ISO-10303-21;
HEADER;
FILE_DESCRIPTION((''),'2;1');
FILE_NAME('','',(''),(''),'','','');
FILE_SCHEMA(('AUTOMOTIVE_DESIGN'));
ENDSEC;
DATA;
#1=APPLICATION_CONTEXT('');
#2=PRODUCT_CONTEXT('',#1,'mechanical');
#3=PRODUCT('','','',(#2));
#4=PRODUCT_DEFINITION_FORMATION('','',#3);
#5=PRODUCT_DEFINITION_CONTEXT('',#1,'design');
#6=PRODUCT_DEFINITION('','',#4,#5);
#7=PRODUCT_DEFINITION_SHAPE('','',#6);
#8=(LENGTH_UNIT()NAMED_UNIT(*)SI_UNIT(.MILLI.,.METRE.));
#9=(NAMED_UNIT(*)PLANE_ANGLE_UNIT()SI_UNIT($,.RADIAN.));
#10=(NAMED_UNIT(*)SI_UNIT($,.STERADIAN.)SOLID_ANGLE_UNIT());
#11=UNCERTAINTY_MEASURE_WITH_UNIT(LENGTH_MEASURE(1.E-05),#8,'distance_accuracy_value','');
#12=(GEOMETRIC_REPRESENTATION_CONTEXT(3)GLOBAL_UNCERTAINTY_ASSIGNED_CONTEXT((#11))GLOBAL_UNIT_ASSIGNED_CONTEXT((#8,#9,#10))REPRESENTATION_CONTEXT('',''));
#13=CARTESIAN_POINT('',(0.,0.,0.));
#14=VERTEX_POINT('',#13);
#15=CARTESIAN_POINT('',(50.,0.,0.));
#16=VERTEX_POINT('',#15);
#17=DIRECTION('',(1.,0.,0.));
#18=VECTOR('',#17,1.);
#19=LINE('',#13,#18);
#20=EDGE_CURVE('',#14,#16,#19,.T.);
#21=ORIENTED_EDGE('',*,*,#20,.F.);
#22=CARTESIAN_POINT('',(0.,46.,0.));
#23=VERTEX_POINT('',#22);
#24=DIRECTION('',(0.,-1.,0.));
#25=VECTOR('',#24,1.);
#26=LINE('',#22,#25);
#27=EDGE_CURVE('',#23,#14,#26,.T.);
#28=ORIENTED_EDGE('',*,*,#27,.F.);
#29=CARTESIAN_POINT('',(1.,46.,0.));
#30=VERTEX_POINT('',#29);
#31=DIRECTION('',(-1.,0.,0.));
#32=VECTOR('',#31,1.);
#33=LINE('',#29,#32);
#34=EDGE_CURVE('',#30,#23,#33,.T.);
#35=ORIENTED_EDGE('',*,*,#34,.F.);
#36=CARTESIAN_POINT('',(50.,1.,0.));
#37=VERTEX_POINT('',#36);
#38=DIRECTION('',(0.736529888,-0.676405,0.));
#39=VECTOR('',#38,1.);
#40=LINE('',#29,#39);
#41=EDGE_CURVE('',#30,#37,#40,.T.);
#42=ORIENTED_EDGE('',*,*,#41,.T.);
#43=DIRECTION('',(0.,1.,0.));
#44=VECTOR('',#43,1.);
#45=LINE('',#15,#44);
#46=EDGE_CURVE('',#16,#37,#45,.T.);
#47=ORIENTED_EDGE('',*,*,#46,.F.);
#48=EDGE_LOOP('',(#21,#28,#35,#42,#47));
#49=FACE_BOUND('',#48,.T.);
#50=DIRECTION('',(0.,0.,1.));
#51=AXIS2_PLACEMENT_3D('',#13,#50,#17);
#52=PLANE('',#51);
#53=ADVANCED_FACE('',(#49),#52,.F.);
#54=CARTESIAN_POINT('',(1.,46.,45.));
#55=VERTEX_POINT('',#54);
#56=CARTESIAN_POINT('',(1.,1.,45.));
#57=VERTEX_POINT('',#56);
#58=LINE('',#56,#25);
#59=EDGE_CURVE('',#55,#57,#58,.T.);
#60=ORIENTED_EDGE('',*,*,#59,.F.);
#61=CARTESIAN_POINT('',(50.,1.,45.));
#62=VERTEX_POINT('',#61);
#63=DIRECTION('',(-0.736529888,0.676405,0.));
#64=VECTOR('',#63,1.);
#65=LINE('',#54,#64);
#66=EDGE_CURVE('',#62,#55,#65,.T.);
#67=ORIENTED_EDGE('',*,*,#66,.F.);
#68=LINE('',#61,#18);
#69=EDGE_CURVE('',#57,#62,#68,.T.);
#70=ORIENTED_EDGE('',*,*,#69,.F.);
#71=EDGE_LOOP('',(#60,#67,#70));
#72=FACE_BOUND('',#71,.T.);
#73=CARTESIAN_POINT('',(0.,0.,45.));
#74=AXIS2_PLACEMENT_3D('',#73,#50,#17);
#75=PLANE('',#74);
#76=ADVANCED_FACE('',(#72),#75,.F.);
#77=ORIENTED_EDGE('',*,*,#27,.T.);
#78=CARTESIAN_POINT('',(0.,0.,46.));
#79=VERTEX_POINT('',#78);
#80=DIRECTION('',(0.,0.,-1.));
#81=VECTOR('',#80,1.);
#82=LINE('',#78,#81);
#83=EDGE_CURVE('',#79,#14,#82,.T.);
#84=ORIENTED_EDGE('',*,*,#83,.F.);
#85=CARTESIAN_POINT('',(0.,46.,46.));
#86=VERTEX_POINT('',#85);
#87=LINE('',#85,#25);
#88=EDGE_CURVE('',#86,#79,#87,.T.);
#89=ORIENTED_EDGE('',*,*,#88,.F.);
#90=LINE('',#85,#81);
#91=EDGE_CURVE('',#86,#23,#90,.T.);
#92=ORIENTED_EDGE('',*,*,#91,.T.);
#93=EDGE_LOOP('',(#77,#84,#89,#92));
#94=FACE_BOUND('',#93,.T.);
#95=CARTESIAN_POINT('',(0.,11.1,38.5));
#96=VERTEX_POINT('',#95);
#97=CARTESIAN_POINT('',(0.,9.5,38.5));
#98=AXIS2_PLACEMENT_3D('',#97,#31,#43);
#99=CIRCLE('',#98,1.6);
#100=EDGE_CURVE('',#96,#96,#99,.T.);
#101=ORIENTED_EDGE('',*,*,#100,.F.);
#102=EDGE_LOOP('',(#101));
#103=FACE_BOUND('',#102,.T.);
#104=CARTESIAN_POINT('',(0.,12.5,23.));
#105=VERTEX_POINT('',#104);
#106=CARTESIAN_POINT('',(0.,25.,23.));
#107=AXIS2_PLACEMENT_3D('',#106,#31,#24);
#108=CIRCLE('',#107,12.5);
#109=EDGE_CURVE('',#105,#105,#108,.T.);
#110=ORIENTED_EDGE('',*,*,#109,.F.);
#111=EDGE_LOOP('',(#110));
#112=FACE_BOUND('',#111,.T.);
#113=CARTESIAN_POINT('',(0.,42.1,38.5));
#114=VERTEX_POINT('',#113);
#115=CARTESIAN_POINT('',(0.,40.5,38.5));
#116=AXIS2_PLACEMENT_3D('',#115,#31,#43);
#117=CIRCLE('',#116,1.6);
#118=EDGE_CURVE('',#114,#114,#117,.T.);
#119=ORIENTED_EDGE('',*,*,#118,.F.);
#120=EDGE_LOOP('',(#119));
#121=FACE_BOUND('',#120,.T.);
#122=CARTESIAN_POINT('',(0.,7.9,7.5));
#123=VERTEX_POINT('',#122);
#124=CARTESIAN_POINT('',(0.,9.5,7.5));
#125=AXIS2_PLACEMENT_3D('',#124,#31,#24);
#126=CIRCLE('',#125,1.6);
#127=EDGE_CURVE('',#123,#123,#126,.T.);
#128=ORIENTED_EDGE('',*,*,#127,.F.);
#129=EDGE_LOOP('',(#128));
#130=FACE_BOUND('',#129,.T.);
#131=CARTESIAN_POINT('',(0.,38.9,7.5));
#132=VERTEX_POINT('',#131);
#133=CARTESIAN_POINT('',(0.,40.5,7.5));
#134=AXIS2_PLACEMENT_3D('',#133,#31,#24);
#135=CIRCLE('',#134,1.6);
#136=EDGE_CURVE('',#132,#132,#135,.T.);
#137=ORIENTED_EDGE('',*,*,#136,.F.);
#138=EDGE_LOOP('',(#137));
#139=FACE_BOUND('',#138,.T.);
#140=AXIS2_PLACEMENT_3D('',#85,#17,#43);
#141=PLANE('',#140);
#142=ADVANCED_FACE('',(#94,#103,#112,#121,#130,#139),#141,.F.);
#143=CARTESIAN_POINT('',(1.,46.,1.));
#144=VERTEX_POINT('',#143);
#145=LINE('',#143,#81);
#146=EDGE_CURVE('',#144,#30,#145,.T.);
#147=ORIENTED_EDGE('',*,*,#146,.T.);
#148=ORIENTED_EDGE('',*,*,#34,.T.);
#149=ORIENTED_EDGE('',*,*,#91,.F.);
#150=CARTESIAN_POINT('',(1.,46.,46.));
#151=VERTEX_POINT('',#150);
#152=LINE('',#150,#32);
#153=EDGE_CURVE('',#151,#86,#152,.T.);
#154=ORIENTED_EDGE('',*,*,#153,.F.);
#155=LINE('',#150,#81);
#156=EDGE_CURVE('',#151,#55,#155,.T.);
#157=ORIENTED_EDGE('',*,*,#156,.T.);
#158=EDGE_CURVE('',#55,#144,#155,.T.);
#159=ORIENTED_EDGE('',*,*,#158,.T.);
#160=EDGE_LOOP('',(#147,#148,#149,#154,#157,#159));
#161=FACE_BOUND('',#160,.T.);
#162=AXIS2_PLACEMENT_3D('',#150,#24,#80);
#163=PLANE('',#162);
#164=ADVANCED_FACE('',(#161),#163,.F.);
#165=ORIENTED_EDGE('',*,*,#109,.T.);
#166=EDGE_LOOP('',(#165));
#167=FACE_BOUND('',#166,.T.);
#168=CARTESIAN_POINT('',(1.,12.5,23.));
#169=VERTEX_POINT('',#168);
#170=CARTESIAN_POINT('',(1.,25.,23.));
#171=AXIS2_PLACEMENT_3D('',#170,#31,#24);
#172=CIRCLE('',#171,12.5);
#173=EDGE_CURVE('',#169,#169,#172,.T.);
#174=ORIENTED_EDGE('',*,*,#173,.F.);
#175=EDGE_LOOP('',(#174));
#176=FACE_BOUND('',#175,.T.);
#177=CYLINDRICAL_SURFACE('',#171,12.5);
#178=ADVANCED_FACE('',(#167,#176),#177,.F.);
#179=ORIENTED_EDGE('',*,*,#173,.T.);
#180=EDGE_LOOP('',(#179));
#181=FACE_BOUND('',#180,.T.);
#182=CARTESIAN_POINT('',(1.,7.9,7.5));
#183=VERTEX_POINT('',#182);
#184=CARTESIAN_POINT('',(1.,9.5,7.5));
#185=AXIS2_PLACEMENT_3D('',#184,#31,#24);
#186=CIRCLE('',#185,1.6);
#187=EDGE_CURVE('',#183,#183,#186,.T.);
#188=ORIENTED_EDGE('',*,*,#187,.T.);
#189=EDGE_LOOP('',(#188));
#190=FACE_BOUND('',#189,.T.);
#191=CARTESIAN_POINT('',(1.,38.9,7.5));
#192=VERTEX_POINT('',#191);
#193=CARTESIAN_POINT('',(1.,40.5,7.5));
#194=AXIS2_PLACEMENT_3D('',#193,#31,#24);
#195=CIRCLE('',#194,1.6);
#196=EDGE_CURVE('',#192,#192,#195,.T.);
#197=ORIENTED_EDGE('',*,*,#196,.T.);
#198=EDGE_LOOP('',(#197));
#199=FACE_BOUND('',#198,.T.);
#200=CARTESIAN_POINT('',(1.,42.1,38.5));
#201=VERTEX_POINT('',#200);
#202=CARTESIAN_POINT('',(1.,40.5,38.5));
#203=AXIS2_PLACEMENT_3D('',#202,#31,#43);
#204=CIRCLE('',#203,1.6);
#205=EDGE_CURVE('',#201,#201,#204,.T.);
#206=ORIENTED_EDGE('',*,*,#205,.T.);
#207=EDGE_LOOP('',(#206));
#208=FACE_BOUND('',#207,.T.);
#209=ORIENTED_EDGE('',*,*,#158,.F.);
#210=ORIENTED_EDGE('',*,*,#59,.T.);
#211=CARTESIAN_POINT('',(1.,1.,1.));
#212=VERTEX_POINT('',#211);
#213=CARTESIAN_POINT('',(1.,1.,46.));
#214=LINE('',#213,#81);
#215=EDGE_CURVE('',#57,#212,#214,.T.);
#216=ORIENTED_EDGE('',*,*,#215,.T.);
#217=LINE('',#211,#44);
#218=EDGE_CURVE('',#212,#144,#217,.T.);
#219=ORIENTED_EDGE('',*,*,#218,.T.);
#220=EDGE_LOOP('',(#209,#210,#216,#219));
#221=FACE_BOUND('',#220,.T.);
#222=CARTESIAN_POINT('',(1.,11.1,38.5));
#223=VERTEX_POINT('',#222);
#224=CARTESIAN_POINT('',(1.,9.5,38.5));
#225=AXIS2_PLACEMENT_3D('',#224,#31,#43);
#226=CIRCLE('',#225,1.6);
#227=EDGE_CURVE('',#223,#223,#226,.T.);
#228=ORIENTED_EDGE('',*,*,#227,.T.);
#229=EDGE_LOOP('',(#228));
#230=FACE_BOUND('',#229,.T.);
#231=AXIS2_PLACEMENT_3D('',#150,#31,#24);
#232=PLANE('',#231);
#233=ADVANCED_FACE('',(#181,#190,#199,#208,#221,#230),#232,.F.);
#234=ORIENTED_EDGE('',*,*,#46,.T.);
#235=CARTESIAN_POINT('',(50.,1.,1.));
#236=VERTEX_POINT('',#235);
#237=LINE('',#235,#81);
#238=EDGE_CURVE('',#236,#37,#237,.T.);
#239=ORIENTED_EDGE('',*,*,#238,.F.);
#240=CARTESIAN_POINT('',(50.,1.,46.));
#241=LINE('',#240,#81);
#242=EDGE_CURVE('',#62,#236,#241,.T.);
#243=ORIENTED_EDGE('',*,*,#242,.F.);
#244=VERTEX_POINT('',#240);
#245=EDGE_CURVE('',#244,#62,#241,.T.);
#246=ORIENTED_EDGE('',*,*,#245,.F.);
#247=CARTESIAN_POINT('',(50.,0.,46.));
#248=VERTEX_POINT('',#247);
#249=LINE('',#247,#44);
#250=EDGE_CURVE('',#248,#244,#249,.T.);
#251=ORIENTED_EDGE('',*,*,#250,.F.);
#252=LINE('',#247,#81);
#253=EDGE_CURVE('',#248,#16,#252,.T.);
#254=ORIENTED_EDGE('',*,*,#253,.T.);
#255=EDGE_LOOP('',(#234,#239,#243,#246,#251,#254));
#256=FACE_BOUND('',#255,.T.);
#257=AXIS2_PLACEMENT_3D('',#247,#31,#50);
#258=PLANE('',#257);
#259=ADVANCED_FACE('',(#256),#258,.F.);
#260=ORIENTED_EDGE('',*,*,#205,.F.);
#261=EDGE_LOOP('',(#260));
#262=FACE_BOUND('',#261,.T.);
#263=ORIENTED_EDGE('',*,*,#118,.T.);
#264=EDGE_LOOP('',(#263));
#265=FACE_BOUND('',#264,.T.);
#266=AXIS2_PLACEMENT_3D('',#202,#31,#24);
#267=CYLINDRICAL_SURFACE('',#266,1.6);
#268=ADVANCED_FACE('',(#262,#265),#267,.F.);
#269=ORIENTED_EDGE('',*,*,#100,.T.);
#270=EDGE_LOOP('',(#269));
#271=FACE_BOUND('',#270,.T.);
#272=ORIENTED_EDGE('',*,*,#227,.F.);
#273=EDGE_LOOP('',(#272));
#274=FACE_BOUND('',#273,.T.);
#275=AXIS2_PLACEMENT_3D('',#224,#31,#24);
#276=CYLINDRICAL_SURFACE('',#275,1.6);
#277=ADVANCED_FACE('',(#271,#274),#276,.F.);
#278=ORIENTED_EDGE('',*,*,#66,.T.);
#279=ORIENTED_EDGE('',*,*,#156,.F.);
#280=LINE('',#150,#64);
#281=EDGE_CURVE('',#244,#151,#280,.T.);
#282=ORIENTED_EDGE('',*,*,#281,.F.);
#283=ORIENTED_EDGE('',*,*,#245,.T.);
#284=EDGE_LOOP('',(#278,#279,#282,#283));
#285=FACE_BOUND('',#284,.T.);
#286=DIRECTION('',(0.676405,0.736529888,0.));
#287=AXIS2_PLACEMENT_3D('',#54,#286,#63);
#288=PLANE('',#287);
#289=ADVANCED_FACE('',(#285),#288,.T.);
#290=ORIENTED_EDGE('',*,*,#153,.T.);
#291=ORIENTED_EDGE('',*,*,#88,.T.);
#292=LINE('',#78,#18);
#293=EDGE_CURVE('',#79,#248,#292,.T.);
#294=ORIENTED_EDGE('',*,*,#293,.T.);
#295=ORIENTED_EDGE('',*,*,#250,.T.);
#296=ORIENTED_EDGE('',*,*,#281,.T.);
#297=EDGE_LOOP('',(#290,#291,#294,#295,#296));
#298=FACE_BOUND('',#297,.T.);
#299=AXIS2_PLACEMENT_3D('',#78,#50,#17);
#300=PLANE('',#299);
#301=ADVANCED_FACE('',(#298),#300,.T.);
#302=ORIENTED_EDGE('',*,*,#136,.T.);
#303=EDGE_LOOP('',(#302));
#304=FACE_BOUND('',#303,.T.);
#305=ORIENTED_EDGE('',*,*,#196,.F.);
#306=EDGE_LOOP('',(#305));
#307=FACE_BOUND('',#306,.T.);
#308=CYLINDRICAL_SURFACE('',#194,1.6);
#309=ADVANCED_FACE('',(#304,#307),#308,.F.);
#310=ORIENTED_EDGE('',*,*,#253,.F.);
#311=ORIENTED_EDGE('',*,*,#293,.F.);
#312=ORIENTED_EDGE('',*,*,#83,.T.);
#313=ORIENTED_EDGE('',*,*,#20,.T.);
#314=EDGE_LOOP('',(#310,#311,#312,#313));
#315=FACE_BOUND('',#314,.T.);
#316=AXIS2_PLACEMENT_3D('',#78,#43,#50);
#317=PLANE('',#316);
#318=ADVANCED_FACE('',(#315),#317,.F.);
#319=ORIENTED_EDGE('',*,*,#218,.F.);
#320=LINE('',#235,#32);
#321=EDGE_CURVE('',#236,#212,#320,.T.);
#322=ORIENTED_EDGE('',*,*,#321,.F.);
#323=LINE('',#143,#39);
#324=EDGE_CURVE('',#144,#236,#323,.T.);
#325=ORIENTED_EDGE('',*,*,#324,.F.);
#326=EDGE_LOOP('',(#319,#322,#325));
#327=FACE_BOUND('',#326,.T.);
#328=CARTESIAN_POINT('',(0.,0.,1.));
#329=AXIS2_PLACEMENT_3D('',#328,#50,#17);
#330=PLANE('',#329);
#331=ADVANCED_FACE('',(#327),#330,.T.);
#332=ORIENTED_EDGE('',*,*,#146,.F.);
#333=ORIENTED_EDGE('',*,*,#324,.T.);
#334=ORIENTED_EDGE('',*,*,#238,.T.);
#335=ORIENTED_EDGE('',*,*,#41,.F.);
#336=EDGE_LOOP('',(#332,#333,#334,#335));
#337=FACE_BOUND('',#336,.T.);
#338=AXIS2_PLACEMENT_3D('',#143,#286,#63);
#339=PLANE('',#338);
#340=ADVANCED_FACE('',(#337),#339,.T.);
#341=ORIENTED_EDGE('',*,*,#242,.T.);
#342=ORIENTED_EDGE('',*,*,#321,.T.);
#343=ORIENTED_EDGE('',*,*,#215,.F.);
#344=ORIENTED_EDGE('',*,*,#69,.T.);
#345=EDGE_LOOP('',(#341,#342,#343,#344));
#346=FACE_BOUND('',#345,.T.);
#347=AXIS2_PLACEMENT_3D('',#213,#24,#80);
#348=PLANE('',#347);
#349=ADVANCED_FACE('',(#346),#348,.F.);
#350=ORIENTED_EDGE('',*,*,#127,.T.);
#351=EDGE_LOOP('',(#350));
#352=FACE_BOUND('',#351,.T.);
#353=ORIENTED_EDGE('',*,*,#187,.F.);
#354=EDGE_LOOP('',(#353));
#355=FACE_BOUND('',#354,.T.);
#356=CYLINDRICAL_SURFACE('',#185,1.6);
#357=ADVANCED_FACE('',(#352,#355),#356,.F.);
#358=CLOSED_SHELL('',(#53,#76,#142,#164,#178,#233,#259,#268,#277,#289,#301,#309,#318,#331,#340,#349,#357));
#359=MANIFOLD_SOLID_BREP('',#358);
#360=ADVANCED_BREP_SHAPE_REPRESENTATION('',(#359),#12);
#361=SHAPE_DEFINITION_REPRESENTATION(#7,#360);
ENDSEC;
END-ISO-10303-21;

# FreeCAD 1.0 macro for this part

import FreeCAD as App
import Part
import Sketcher
Q = App.Units.Quantity

doc = App.newDocument("Part")
body = doc.addObject("PartDesign::Body", "Body")

# Sketch on XY plane
sketch1 = body.newObject("Sketcher::SketchObject", "Sketch")
sketch1.AttachmentSupport = (doc.getObject("XY_Plane"), [""])
sketch1.MapMode = "FlatFace"
sketch1.addGeometry([
    Part.LineSegment(App.Vector(0, 46, 0), App.Vector(0, 0, 0)),  # 0
    Part.LineSegment(App.Vector(0, 0, 0), App.Vector(50, 0, 0)),  # 1
    Part.LineSegment(App.Vector(50, 0, 0), App.Vector(50, 1, 0)),  # 2
    Part.LineSegment(App.Vector(50, 1, 0), App.Vector(1, 1, 0)),  # 3
    Part.LineSegment(App.Vector(1, 1, 0), App.Vector(1, 46, 0)),  # 4
    Part.LineSegment(App.Vector(1, 46, 0), App.Vector(0, 46, 0)),  # 5
], False)
sketch1.addConstraint([
    Sketcher.Constraint("Coincident", 0, 2, 1, 1),
    Sketcher.Constraint("Coincident", 1, 2, 2, 1),
    Sketcher.Constraint("Coincident", 2, 2, 3, 1),
    Sketcher.Constraint("Coincident", 3, 2, 4, 1),
    Sketcher.Constraint("Coincident", 4, 2, 5, 1),
    Sketcher.Constraint("Coincident", 5, 2, 0, 1),
    Sketcher.Constraint("Vertical", 0),
    Sketcher.Constraint("Horizontal", 1),
    Sketcher.Constraint("Vertical", 2),
    Sketcher.Constraint("Horizontal", 3),
    Sketcher.Constraint("Vertical", 4),
    Sketcher.Constraint("Horizontal", 5),
    Sketcher.Constraint("Coincident", 0, 2, -1, 1),
    Sketcher.Constraint("Equal", 5, 2),
    Sketcher.Constraint("DistanceX", 1, 1, 1, 2, Q("50 mm")),
    Sketcher.Constraint("DistanceX", 3, 2, 3, 1, Q("49 mm")),
    Sketcher.Constraint("DistanceY", 0, 2, 0, 1, Q("46 mm")),
])
pad1 = body.newObject("PartDesign::Pad", "Pad")
pad1.Profile = sketch1
pad1.Length = 46

# Sketch on XY plane
sketch2 = body.newObject("Sketcher::SketchObject", "Sketch001")
sketch2.AttachmentSupport = (doc.getObject("XY_Plane"), [""])
sketch2.MapMode = "FlatFace"
sketch2.AttachmentOffset = App.Placement(App.Vector(0, 0, 46), App.Rotation())
sketch2.addGeometry([
    Part.LineSegment(App.Vector(50, 1, 0), App.Vector(1, 46, 0)),
    Part.LineSegment(App.Vector(1, 46, 0), App.Vector(1, 1, 0)),
    Part.LineSegment(App.Vector(1, 1, 0), App.Vector(50, 1, 0)),
], False)
sketch2.addConstraint([
    Sketcher.Constraint("Coincident", 0, 2, 1, 1),
    Sketcher.Constraint("Coincident", 1, 2, 2, 1),
    Sketcher.Constraint("Coincident", 2, 2, 0, 1),
    Sketcher.Constraint("Vertical", 1),
    Sketcher.Constraint("Horizontal", 2),
    Sketcher.Constraint("DistanceX", 2, 1, 2, 2, Q("49 mm")),
    Sketcher.Constraint("DistanceY", 1, 2, 1, 1, Q("45 mm")),
    Sketcher.Constraint("DistanceX", -1, 1, 0, 2, Q("1 mm")),
    Sketcher.Constraint("DistanceY", -1, 1, 0, 2, Q("46 mm")),
])
pad2 = body.newObject("PartDesign::Pad", "Pad001")
pad2.Profile = sketch2
pad2.Length = 1
pad2.Reversed = True

# Sketch on XY plane
sketch3 = body.newObject("Sketcher::SketchObject", "Sketch002")
sketch3.AttachmentSupport = (doc.getObject("XY_Plane"), [""])
sketch3.MapMode = "FlatFace"
sketch3.addGeometry([
    Part.LineSegment(App.Vector(1, 46, 0), App.Vector(50, 1, 0)),
    Part.LineSegment(App.Vector(50, 1, 0), App.Vector(1, 1, 0)),
    Part.LineSegment(App.Vector(1, 1, 0), App.Vector(1, 46, 0)),
], False)
sketch3.addConstraint([
    Sketcher.Constraint("Coincident", 0, 2, 1, 1),
    Sketcher.Constraint("Coincident", 1, 2, 2, 1),
    Sketcher.Constraint("Coincident", 2, 2, 0, 1),
    Sketcher.Constraint("Horizontal", 1),
    Sketcher.Constraint("Vertical", 2),
    Sketcher.Constraint("DistanceX", 1, 2, 1, 1, Q("49 mm")),
    Sketcher.Constraint("DistanceY", 2, 1, 2, 2, Q("45 mm")),
    Sketcher.Constraint("DistanceX", -1, 1, 0, 2, Q("50 mm")),
    Sketcher.Constraint("DistanceY", -1, 1, 0, 2, Q("1 mm")),
])
pad3 = body.newObject("PartDesign::Pad", "Pad002")
pad3.Profile = sketch3
pad3.Length = 1

# Sketch on YZ plane
sketch4 = body.newObject("Sketcher::SketchObject", "Sketch003")
sketch4.AttachmentSupport = (doc.getObject("YZ_Plane"), [""])
sketch4.MapMode = "FlatFace"
sketch4.addGeometry([
    Part.Circle(App.Vector(40.5, 7.5, 0), App.Vector(0, 0, 1), 1.6),  # 0
    Part.Circle(App.Vector(40.5, 38.5, 0), App.Vector(0, 0, 1), 1.6),  # 1
    Part.Circle(App.Vector(9.5, 7.5, 0), App.Vector(0, 0, 1), 1.6),  # 2
    Part.Circle(App.Vector(9.5, 38.5, 0), App.Vector(0, 0, 1), 1.6),  # 3
    Part.Circle(App.Vector(25, 23, 0), App.Vector(0, 0, 1), 12.5),  # 4
], False)
sketch4.addConstraint([
    Sketcher.Constraint("Equal", 0, 1),
    Sketcher.Constraint("Equal", 1, 2),
    Sketcher.Constraint("Equal", 2, 3),
    Sketcher.Constraint("Horizontal", 0, 3, 2, 3),
    Sketcher.Constraint("Horizontal", 1, 3, 3, 3),
    Sketcher.Constraint("Vertical", 0, 3, 1, 3),
    Sketcher.Constraint("Vertical", 2, 3, 3, 3),
    Sketcher.Constraint("Diameter", 4, Q("25 mm")),
    Sketcher.Constraint("Diameter", 0, Q("3.2 mm")),
    Sketcher.Constraint("DistanceX", -1, 1, 4, 3, Q("25 mm")),
    Sketcher.Constraint("DistanceY", -1, 1, 4, 3, Q("23 mm")),
    Sketcher.Constraint("DistanceY", 0, 3, 1, 3, Q("31 mm")),
    Sketcher.Constraint("DistanceX", 2, 3, 0, 3, Q("31 mm")),
    Sketcher.Constraint("DistanceX", -1, 1, 0, 3, Q("40.5 mm")),
    Sketcher.Constraint("DistanceY", -1, 1, 0, 3, Q("7.5 mm")),
])
pocket1 = body.newObject("PartDesign::Pocket", "Pocket")
pocket1.Profile = sketch4
pocket1.Length = 1
pocket1.Reversed = True

doc.recompute()
